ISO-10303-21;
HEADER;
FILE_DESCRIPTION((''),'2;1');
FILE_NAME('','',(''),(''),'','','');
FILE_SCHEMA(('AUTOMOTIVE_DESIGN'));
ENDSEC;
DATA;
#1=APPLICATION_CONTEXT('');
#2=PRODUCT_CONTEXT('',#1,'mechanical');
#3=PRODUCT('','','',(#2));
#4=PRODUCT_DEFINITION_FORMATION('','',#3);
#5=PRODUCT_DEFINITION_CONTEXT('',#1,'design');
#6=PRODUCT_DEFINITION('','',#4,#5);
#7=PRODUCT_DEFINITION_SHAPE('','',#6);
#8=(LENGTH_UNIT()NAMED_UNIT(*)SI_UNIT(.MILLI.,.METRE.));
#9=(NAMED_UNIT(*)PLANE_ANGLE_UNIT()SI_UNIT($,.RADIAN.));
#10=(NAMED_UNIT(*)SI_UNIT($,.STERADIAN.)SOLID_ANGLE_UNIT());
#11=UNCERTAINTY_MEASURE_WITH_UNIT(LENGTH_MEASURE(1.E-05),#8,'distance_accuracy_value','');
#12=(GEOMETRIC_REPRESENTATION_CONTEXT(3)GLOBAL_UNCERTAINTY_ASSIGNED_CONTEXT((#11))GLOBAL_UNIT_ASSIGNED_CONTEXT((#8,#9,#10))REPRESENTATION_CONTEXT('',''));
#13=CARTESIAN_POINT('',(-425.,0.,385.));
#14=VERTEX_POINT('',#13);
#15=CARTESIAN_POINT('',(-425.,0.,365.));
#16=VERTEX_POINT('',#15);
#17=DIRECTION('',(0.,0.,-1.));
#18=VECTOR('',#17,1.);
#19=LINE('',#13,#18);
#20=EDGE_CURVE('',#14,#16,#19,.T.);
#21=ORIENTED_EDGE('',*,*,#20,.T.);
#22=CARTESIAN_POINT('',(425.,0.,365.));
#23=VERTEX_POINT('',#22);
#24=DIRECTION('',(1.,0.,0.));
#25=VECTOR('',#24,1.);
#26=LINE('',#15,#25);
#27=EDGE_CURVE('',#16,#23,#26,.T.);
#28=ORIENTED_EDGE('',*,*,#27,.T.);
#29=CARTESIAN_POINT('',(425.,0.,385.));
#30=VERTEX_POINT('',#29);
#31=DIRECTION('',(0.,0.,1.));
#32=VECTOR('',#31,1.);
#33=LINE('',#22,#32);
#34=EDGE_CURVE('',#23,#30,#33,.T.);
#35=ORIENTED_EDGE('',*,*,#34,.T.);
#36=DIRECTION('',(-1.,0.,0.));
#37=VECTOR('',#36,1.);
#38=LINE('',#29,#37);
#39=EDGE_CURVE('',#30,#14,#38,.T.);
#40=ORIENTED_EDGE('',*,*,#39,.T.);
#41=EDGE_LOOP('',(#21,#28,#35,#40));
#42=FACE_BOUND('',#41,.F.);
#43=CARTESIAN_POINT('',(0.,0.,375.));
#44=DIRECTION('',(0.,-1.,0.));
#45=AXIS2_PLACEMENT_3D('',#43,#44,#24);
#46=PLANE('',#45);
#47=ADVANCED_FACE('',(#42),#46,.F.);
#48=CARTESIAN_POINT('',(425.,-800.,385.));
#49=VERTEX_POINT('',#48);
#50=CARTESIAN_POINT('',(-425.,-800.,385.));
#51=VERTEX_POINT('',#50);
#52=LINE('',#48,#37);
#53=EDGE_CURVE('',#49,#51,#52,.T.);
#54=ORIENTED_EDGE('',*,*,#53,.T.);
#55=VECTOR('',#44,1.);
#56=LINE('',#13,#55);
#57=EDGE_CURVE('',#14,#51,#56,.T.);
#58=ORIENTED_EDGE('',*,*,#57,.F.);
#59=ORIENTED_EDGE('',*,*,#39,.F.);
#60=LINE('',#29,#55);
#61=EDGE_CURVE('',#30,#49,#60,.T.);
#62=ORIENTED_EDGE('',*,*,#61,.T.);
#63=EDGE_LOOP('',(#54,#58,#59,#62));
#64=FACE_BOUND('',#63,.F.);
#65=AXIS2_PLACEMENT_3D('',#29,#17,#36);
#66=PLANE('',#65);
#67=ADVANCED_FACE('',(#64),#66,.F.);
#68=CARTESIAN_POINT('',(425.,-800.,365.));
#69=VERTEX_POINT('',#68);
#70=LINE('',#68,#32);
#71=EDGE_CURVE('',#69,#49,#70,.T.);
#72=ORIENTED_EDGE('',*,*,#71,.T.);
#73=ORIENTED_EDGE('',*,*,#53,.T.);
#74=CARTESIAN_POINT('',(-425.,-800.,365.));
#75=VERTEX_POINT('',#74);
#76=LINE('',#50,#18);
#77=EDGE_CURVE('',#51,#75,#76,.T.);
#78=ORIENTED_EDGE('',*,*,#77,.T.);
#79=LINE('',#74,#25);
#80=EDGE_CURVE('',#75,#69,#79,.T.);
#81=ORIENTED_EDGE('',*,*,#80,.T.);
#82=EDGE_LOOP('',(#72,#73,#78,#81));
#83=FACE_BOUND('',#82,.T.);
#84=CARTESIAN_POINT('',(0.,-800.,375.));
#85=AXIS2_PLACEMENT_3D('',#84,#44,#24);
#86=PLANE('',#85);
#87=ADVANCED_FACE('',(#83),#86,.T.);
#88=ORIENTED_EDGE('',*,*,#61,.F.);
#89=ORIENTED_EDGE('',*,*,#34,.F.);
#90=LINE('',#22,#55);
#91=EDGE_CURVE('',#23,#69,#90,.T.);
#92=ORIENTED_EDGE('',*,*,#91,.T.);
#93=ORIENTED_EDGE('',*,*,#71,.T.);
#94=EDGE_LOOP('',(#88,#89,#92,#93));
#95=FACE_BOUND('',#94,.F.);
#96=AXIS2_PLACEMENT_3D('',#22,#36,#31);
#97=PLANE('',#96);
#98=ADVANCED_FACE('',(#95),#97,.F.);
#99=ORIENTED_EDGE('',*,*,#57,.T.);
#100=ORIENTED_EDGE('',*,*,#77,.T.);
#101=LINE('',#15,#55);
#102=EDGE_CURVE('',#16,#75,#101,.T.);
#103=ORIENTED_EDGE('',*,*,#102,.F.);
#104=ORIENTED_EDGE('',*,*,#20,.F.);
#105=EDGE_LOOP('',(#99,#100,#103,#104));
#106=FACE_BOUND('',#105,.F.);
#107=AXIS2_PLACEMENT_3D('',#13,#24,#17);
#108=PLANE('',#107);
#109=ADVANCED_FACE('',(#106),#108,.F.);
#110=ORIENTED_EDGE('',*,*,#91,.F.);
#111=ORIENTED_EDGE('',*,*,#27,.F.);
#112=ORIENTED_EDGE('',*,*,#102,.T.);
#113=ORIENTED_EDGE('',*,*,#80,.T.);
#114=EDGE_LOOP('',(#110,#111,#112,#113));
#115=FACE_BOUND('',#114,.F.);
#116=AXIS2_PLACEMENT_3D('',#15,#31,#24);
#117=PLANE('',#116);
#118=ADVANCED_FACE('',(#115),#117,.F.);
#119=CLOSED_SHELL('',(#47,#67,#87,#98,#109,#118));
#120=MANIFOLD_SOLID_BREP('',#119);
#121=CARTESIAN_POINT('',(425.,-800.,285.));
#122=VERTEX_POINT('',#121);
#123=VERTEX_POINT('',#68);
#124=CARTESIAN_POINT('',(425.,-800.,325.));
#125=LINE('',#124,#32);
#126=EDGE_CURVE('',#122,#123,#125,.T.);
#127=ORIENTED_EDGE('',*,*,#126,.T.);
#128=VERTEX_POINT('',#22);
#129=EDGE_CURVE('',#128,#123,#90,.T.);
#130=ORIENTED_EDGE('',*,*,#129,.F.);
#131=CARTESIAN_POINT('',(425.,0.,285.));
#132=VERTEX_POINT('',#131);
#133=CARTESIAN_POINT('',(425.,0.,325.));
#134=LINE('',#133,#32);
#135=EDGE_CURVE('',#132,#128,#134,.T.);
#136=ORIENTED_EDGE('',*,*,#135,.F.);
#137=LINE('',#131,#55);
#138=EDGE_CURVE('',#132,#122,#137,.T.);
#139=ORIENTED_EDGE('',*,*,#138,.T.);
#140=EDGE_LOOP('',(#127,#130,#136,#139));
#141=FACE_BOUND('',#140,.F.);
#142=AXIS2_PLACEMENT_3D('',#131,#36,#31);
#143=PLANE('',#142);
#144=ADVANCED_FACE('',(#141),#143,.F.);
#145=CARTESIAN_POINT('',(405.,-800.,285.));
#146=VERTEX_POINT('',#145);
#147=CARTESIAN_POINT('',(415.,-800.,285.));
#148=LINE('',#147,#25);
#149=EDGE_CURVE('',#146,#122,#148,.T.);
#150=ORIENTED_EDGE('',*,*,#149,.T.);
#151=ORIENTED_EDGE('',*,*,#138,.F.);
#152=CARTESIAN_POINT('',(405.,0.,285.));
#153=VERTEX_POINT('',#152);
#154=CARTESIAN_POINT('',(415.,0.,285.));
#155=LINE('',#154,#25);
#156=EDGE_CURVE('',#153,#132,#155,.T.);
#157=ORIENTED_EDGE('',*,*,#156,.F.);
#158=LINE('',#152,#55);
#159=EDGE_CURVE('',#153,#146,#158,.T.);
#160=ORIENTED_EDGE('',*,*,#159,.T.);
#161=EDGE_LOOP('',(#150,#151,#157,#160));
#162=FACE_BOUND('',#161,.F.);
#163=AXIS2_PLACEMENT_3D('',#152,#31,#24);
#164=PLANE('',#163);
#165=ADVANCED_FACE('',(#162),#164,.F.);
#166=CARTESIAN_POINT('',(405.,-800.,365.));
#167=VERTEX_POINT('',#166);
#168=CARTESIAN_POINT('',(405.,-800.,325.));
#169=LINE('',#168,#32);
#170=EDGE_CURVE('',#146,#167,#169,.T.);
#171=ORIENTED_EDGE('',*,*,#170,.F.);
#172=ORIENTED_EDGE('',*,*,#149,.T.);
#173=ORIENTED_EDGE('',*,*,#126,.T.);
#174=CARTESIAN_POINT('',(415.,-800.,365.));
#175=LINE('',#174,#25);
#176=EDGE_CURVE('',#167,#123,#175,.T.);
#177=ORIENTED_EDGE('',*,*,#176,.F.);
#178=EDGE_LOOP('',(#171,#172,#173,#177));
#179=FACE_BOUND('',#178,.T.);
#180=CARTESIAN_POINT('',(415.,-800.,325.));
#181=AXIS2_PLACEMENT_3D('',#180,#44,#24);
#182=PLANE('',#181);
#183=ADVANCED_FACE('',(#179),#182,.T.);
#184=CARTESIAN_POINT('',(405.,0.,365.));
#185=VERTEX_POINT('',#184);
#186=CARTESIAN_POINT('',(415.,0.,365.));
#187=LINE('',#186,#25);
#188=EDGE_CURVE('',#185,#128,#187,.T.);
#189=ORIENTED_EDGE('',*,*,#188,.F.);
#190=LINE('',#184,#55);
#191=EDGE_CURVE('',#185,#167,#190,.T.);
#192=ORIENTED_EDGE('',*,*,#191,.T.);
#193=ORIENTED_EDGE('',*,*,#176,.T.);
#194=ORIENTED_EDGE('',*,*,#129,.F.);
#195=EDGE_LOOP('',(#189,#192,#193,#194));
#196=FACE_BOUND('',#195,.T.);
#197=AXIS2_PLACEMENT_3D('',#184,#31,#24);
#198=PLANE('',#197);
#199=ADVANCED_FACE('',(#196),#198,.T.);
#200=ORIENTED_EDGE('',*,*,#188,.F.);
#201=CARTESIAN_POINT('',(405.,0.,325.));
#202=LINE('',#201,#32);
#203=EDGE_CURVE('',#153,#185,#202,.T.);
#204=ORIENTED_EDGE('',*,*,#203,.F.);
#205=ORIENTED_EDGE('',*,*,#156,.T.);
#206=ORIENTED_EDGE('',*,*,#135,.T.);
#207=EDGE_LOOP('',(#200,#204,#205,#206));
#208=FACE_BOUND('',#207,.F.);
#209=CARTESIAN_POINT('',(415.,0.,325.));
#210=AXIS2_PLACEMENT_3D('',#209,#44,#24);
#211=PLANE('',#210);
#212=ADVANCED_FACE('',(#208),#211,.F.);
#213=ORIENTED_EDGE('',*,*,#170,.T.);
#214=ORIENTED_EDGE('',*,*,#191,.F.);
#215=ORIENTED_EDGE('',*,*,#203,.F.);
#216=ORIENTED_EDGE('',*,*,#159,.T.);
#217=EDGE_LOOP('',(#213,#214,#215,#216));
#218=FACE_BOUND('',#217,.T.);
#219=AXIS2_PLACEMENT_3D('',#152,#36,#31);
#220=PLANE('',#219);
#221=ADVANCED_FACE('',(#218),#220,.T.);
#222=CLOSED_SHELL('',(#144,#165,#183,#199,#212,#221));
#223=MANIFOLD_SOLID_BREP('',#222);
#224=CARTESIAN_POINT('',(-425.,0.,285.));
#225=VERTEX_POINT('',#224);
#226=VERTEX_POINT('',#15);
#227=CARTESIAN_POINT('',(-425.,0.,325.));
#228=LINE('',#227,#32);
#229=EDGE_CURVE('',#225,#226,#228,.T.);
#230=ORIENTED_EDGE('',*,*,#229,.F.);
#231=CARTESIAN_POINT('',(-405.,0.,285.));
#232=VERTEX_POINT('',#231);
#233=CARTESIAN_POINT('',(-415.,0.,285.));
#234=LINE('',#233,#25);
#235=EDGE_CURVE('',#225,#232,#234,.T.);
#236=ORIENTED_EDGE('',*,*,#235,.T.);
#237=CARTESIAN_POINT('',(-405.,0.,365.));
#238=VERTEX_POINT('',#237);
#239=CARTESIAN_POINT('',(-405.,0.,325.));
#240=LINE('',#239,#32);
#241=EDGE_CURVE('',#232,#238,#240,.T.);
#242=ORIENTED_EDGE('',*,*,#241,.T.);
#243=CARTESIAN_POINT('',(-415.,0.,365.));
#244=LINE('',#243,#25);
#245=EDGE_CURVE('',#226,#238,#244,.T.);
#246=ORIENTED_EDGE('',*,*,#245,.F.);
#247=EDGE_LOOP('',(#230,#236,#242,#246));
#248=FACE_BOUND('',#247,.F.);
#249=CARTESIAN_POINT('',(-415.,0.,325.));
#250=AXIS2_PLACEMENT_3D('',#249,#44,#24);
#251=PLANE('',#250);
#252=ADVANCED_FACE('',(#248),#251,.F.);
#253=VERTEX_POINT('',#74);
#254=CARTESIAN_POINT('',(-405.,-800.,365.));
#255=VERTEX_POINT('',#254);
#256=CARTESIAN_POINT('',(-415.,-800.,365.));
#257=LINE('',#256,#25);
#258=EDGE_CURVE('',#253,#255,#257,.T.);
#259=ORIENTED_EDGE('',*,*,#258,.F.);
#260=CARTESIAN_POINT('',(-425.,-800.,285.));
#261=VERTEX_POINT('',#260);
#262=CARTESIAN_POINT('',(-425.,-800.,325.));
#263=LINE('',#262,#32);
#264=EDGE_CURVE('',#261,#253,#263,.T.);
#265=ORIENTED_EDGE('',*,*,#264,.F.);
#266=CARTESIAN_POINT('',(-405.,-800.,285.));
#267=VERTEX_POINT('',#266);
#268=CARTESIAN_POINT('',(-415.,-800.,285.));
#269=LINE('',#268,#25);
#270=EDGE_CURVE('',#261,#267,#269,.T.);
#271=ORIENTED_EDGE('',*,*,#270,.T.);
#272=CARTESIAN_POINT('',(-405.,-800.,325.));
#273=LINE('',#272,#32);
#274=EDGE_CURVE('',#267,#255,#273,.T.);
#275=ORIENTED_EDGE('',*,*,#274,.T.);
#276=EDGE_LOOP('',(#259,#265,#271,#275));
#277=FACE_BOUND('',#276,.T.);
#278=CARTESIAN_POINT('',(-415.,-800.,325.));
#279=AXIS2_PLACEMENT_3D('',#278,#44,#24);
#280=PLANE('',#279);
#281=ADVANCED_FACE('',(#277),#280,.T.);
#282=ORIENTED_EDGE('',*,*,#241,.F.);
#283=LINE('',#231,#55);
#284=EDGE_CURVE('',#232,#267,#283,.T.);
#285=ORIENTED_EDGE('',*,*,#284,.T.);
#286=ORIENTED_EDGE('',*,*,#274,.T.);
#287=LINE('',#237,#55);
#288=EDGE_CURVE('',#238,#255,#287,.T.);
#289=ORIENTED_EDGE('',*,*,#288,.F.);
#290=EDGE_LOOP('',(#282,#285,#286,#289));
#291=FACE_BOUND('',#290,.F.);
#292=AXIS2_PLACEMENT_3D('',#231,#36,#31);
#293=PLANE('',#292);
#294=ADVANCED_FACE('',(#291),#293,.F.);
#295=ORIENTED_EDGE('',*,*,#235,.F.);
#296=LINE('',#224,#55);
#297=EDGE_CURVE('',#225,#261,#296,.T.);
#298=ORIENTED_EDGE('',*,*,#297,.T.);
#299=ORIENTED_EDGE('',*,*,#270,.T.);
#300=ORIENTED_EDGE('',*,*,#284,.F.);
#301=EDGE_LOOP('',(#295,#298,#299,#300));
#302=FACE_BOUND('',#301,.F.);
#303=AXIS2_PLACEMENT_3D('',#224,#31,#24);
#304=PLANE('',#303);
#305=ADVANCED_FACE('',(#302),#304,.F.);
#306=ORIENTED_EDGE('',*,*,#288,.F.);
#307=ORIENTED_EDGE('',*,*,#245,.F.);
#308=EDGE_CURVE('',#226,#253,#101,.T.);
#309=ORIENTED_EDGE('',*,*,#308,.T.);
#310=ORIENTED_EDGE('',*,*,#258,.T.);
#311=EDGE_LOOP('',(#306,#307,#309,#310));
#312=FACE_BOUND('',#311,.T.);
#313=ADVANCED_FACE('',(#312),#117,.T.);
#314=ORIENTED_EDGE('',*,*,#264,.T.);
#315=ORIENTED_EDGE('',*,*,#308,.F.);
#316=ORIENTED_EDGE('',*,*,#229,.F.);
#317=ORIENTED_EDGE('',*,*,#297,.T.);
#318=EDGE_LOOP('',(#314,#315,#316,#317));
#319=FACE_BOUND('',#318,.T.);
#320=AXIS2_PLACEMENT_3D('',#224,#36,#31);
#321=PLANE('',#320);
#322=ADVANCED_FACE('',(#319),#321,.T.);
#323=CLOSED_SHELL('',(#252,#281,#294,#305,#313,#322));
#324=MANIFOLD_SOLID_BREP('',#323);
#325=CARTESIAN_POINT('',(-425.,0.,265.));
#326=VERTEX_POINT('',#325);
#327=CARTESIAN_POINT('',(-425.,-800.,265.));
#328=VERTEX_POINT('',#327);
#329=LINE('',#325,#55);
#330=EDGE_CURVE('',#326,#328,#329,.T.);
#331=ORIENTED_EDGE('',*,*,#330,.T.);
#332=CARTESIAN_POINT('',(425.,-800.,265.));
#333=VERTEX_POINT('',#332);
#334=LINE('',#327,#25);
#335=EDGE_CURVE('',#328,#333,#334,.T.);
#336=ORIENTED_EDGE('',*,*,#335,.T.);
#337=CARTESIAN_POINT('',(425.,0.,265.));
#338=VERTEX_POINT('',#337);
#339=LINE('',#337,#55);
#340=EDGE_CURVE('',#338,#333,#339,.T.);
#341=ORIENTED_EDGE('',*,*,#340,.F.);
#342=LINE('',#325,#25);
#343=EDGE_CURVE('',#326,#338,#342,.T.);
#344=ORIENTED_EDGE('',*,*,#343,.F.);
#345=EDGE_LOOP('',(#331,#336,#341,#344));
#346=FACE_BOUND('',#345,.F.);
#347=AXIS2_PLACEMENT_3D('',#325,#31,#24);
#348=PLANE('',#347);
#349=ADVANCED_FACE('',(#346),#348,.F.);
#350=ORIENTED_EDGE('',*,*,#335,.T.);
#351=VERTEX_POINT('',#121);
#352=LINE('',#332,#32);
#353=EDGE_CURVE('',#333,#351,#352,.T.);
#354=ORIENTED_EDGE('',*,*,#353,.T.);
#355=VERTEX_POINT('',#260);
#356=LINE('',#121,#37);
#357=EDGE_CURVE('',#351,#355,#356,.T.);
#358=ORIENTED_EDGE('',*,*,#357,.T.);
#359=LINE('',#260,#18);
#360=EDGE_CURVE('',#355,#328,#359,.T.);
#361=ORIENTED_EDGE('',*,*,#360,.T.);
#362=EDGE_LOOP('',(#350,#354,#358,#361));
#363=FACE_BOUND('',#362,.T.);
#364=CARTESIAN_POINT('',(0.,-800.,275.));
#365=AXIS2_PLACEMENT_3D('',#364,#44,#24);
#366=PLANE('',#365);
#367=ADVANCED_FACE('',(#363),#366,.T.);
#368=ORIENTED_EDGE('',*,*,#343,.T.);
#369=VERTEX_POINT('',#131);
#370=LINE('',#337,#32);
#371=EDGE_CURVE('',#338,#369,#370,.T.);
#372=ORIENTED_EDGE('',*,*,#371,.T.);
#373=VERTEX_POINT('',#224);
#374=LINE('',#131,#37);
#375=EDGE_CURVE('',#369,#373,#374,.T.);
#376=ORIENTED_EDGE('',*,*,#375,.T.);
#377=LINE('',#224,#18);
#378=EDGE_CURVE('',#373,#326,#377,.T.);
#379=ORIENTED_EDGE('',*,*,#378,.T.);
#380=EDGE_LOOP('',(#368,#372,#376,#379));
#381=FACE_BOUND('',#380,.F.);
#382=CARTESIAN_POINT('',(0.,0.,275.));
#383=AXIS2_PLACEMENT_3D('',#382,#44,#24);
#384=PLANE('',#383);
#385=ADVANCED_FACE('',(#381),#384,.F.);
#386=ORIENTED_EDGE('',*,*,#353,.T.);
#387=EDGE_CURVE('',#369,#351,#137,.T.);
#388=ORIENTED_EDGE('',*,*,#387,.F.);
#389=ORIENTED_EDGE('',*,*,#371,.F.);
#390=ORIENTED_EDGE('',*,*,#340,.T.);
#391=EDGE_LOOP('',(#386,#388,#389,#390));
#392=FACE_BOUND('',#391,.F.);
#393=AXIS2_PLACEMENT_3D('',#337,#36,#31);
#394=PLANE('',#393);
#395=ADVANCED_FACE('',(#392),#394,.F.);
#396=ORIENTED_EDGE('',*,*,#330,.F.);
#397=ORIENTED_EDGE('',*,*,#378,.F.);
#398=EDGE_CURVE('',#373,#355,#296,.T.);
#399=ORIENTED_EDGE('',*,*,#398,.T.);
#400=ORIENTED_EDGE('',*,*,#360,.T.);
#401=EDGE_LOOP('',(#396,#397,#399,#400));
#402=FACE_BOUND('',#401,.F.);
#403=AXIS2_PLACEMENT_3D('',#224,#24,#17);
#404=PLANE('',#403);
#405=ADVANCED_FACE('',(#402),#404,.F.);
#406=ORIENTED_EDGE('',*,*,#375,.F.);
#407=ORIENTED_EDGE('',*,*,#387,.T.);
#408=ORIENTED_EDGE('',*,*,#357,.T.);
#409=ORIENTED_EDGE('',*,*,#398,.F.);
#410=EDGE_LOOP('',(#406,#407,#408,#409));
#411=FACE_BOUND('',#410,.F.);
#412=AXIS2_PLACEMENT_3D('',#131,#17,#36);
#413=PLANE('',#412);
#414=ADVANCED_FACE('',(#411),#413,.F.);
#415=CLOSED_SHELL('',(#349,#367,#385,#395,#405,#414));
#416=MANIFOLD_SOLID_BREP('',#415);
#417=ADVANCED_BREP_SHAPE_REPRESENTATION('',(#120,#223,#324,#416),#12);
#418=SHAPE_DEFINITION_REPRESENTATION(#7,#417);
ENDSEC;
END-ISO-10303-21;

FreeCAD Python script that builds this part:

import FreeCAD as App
import Part
import Sketcher


def add_polygon(sketch, points):
    """Adds a closed chain of lines whose ends are joined by coincident constraints."""
    first, n = sketch.GeometryCount, len(points)
    for a, b in zip(points, points[1:] + points[:1]):
        sketch.addGeometry(Part.LineSegment(App.Vector(*a, 0), App.Vector(*b, 0)), False)
    for i in range(n):
        sketch.addConstraint(Sketcher.Constraint("Coincident", first + i, 2, first + (i + 1) % n, 1))

doc = App.newDocument("Part")
body = doc.addObject("PartDesign::Body", "Body")
body.AllowCompound = True

sketch1 = doc.addObject("Sketcher::SketchObject", "Sketch")
body.addObject(sketch1)
sketch1.AttachmentSupport = (doc.XZ_Plane, [""])
sketch1.MapMode = "FlatFace"
add_polygon(sketch1, [(425, 385), (-425, 385), (-425, 365), (425, 365)])
add_polygon(sketch1, [(-425, 285), (-425, 265), (425, 265), (425, 285)])
sketch1.addConstraint([
    Sketcher.Constraint("Horizontal", 0),
    Sketcher.Constraint("Vertical", 1),
    Sketcher.Constraint("Horizontal", 2),
    Sketcher.Constraint("Vertical", 3),
    Sketcher.Constraint("Vertical", 4),
    Sketcher.Constraint("Horizontal", 5),
    Sketcher.Constraint("Vertical", 6),
    Sketcher.Constraint("Horizontal", 7),
    Sketcher.Constraint("Vertical", 1, 2, 4, 2),
    Sketcher.Constraint("Vertical", 3, 2, 5, 2),
    Sketcher.Constraint("Equal", 3, 4),
    Sketcher.Constraint("DistanceX", 0, 2, 0, 1, 850.0),
    Sketcher.Constraint("DistanceY", 1, 2, 1, 1, 20.0),
    Sketcher.Constraint("DistanceX", 0, 2, -1, 1, 425.0),
    Sketcher.Constraint("DistanceY", -1, 1, 0, 2, 385.0),
    Sketcher.Constraint("DistanceY", -1, 1, 4, 2, 265.0),
])
pad1 = doc.addObject("PartDesign::Pad", "Pad")
body.addObject(pad1)
pad1.Profile = sketch1
pad1.Length = 800
body2 = doc.addObject("PartDesign::Body", "Body001")
body2.AllowCompound = True

sketch2 = doc.addObject("Sketcher::SketchObject", "Sketch001")
body2.addObject(sketch2)
sketch2.AttachmentSupport = (doc.getObject("XZ_Plane001"), [""])
sketch2.MapMode = "FlatFace"
add_polygon(sketch2, [(405, 365), (405, 285), (425, 285), (425, 365)])
add_polygon(sketch2, [(-425, 365), (-425, 285), (-405, 285), (-405, 365)])
sketch2.addConstraint([
    Sketcher.Constraint("Vertical", 0),
    Sketcher.Constraint("Horizontal", 1),
    Sketcher.Constraint("Vertical", 2),
    Sketcher.Constraint("Horizontal", 3),
    Sketcher.Constraint("Vertical", 4),
    Sketcher.Constraint("Horizontal", 5),
    Sketcher.Constraint("Vertical", 6),
    Sketcher.Constraint("Horizontal", 7),
    Sketcher.Constraint("Symmetric", 1, 2, 4, 2, -2),
    Sketcher.Constraint("Symmetric", 3, 2, 6, 2, -2),
    Sketcher.Constraint("DistanceX", 1, 1, 1, 2, 20.0),
    Sketcher.Constraint("DistanceY", 0, 2, 0, 1, 80.0),
    Sketcher.Constraint("DistanceX", -1, 1, 0, 2, 405.0),
    Sketcher.Constraint("DistanceY", -1, 1, 0, 2, 285.0),
])
pad2 = doc.addObject("PartDesign::Pad", "Pad001")
body2.addObject(pad2)
pad2.Profile = sketch2
pad2.Length = 800

doc.recompute()
